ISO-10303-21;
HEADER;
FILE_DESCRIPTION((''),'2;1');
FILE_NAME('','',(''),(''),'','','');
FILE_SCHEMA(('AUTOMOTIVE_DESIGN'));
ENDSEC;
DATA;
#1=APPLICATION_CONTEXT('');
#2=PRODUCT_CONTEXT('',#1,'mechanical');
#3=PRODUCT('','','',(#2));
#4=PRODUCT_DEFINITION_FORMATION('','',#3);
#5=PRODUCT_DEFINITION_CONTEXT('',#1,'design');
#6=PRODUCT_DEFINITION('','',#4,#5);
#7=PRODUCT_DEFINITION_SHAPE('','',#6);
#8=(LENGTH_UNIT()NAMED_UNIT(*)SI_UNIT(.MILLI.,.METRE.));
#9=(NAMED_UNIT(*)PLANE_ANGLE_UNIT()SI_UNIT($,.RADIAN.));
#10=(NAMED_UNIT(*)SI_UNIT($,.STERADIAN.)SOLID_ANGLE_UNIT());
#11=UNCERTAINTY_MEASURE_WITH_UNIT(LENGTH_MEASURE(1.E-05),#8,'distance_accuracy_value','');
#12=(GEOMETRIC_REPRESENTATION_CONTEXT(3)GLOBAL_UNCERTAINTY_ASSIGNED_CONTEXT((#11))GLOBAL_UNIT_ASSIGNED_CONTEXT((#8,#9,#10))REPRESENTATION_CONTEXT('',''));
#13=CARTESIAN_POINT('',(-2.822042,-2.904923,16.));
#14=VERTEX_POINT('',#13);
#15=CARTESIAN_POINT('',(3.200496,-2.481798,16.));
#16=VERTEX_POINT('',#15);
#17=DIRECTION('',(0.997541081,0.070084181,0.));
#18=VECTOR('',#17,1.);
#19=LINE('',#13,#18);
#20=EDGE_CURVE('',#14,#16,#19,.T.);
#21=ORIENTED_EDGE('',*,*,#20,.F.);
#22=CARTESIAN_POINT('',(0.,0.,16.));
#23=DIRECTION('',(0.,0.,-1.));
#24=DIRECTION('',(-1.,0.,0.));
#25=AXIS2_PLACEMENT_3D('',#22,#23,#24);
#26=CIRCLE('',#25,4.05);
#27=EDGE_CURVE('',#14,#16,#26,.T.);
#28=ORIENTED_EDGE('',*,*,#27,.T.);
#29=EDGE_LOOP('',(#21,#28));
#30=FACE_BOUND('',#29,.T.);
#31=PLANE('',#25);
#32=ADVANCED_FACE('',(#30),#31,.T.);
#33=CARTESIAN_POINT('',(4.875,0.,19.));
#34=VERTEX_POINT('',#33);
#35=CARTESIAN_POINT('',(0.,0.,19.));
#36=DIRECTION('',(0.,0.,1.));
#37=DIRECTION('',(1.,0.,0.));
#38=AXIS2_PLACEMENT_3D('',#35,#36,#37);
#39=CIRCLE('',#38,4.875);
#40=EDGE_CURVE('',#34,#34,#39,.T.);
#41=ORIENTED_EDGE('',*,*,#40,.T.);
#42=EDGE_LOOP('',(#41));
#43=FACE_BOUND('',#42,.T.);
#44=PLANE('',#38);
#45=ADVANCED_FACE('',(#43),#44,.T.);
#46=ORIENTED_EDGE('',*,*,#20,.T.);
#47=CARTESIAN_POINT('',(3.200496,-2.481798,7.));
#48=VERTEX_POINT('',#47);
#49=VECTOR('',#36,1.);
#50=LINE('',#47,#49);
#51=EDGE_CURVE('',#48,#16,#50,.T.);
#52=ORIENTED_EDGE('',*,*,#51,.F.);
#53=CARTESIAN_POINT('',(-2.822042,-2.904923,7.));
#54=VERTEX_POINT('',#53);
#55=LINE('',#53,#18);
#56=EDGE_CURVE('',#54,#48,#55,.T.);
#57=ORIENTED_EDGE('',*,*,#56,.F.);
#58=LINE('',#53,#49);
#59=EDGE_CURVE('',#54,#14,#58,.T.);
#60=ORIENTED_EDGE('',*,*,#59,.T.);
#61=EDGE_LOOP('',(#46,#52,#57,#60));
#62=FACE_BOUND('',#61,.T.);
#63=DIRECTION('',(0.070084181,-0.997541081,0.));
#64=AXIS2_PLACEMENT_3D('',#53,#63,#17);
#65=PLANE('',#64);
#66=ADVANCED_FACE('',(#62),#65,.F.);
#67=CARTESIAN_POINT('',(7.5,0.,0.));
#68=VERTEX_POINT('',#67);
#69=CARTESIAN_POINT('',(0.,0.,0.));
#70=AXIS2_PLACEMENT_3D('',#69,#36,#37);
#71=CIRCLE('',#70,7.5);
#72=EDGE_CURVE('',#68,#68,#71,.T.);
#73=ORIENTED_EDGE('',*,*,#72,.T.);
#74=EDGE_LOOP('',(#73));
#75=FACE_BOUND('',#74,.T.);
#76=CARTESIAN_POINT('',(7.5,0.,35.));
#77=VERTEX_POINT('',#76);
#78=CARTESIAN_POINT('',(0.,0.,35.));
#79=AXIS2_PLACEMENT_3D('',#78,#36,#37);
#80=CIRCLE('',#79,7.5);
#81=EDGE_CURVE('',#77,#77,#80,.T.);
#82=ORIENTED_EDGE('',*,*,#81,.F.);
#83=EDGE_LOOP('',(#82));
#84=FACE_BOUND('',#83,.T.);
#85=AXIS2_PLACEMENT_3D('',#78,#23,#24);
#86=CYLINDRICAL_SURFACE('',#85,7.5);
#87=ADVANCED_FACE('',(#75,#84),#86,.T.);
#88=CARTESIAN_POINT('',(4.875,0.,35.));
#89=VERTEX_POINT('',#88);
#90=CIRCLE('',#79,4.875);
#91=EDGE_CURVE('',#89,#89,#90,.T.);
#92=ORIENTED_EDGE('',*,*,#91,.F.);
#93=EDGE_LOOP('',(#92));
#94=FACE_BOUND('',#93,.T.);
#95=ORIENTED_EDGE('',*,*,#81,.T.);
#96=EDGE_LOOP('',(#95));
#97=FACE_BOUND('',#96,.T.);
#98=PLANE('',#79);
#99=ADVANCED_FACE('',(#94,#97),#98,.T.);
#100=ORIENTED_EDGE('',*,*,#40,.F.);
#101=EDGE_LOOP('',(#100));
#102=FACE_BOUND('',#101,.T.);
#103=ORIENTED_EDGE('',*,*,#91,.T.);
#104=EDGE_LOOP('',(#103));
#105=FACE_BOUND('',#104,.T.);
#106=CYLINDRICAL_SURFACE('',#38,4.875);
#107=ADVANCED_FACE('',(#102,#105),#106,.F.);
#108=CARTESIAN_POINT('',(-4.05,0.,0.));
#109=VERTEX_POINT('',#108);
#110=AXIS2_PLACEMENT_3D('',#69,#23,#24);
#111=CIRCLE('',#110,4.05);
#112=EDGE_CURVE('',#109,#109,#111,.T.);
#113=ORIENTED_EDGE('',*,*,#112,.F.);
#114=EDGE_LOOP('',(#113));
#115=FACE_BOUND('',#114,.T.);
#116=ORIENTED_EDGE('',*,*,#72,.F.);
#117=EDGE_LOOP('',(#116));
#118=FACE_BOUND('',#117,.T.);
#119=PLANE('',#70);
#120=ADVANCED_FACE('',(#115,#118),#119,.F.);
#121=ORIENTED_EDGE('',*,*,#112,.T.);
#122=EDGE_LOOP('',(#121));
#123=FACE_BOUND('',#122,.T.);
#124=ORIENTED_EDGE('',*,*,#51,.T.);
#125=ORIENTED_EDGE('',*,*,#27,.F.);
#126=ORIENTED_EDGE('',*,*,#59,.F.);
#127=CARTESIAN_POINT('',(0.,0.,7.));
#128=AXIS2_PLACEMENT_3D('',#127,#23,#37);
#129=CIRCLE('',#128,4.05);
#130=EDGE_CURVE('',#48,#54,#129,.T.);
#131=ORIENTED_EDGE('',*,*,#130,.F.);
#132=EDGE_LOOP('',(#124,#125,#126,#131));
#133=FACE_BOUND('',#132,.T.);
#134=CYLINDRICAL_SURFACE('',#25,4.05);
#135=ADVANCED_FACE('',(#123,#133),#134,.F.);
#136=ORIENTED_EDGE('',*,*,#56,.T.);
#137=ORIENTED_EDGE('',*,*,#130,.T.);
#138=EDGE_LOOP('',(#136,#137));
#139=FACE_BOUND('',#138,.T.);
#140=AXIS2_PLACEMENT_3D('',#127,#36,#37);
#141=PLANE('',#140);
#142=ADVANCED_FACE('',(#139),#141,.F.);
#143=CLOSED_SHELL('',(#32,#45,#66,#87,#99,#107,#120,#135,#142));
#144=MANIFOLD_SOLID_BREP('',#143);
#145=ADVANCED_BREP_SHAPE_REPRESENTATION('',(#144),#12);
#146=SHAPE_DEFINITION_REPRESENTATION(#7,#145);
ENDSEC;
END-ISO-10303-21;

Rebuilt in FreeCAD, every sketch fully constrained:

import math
import FreeCAD as App
import Part
import Sketcher

V = App.Vector

doc = App.newDocument("Part")
body = doc.addObject("PartDesign::Body", "Body")

sketch1 = body.newObject("Sketcher::SketchObject", "Sketch")
sketch1.AttachmentSupport = (doc.getObject("XY_Plane"), [""])
sketch1.MapMode = "FlatFace"
sketch1.addGeometry(Part.Circle(V(0, 0, 0), V(0, 0, 1), 8), False)
sketch1.addConstraint([
    Sketcher.Constraint("Coincident", 0, 3, -1, 1),
    Sketcher.Constraint("Diameter", 0, 15.0),
])
pad1 = body.newObject("PartDesign::Pad", "Pad")
pad1.Profile = sketch1
pad1.Length = 35

sketch2 = body.newObject("Sketcher::SketchObject", "Sketch001")
sketch2.AttachmentSupport = (doc.getObject("XY_Plane"), [""])
sketch2.MapMode = "FlatFace"
sketch2.AttachmentOffset = App.Placement(V(0, 0, 35), App.Rotation())
sketch2.addGeometry(Part.Circle(V(0, 0, 0), V(0, 0, 1), 4.9), False)
sketch2.addConstraint([
    Sketcher.Constraint("Coincident", 0, 3, -1, 1),
    Sketcher.Constraint("Diameter", 0, 9.75),
])
pocket1 = body.newObject("PartDesign::Pocket", "Pocket")
pocket1.Profile = sketch2
pocket1.Length = 16

sketch3 = body.newObject("Sketcher::SketchObject", "Sketch002")
sketch3.AttachmentSupport = (doc.getObject("XY_Plane"), [""])
sketch3.MapMode = "FlatFace"
sketch3.addGeometry(Part.Circle(V(0, 0, 0), V(0, 0, 1), 4), False)
sketch3.addConstraint([
    Sketcher.Constraint("Coincident", 0, 3, -1, 1),
    Sketcher.Constraint("Diameter", 0, 8.1),
])
pocket2 = body.newObject("PartDesign::Pocket", "Pocket001")
pocket2.Profile = sketch3
pocket2.Length = 16
pocket2.Reversed = True

sketch4 = body.newObject("Sketcher::SketchObject", "Sketch003")
sketch4.AttachmentSupport = (doc.getObject("XY_Plane"), [""])
sketch4.MapMode = "FlatFace"
sketch4.AttachmentOffset = App.Placement(V(0, 0, 7), App.Rotation())
sketch4.addGeometry([
    Part.LineSegment(V(-2.8, -2.9, 0), V(3.2, -2.5, 0)),
    Part.ArcOfCircle(Part.Circle(V(0, 0, 0), V(0, 0, 1), 4), math.radians(-134), math.radians(-38)),
], False)
sketch4.addConstraint([
    Sketcher.Constraint("Coincident", 0, 1, 1, 1),
    Sketcher.Constraint("Coincident", 1, 2, 0, 2),
    Sketcher.Constraint("Coincident", 1, 3, -1, 1),
    Sketcher.Constraint("Radius", 1, 4.05),
    Sketcher.Constraint("DistanceY", 1, 2, -1, 1, 2.481798),
    Sketcher.Constraint("DistanceX", 0, 1, -1, 1, 2.822042),
])
pad2 = body.newObject("PartDesign::Pad", "Pad001")
pad2.Profile = sketch4
pad2.Length = 9

doc.recompute()
